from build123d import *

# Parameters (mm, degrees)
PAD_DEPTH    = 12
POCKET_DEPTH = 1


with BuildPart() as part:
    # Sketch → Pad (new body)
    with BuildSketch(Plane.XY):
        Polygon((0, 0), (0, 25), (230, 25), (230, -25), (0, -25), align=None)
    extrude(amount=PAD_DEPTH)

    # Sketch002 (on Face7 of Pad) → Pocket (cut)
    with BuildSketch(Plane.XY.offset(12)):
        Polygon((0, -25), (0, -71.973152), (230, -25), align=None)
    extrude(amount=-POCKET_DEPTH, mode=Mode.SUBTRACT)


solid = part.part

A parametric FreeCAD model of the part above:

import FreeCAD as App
import Part
import Sketcher

V = App.Vector

doc = App.newDocument("Part")
body = doc.addObject("PartDesign::Body", "Body")

sketch1 = body.newObject("Sketcher::SketchObject", "Sketch")
sketch1.AttachmentSupport = (doc.getObject("XY_Plane"), [""])
sketch1.MapMode = "FlatFace"
sketch1.addGeometry([
    Part.LineSegment(V(0, 25, 0), V(0, -25, 0)),
    Part.LineSegment(V(0, -25, 0), V(230, -25, 0)),
    Part.LineSegment(V(230, -25, 0), V(230, 25, 0)),
    Part.LineSegment(V(230, 25, 0), V(0, 25, 0)),
], False)
sketch1.addConstraint([
    Sketcher.Constraint("Coincident", 0, 2, 1, 1),
    Sketcher.Constraint("Coincident", 1, 2, 2, 1),
    Sketcher.Constraint("Coincident", 2, 2, 3, 1),
    Sketcher.Constraint("Coincident", 3, 2, 0, 1),
    Sketcher.Constraint("Vertical", 0),
    Sketcher.Constraint("Horizontal", 1),
    Sketcher.Constraint("Vertical", 2),
    Sketcher.Constraint("Horizontal", 3),
    Sketcher.Constraint("Symmetric", 0, 2, 3, 2, -1, 1),
    Sketcher.Constraint("DistanceX", 1, 1, 1, 2, 230.0),
    Sketcher.Constraint("DistanceY", 0, 2, 0, 1, 50.0),
])
pad1 = body.newObject("PartDesign::Pad", "Pad")
pad1.Profile = sketch1
pad1.Length = 12

sketch2 = body.newObject("Sketcher::SketchObject", "Sketch001")
sketch2.AttachmentSupport = (doc.getObject("XY_Plane"), [""])
sketch2.MapMode = "FlatFace"
sketch2.AttachmentOffset = App.Placement(V(0, 0, 12), App.Rotation())
sketch2.addGeometry([
    Part.LineSegment(V(0, -25, 0), V(0, -72, 0)),
    Part.LineSegment(V(0, -72, 0), V(230, -25, 0)),
    Part.LineSegment(V(230, -25, 0), V(0, -25, 0)),
], False)
sketch2.addConstraint([
    Sketcher.Constraint("Coincident", 0, 2, 1, 1),
    Sketcher.Constraint("Coincident", 1, 2, 2, 1),
    Sketcher.Constraint("Coincident", 2, 2, 0, 1),
    Sketcher.Constraint("Vertical", 0),
    Sketcher.Constraint("Horizontal", 2),
    Sketcher.Constraint("PointOnObject", 0, 2, -2),
    Sketcher.Constraint("DistanceX", 2, 2, 2, 1, 230.0),
    Sketcher.Constraint("DistanceY", 1, 2, -1, 1, 25.0),
    Sketcher.Constraint("DistanceY", 0, 2, 0, 1, 46.973152),
])
pocket1 = body.newObject("PartDesign::Pocket", "Pocket")
pocket1.Profile = sketch2
pocket1.Length = 1

doc.recompute()
